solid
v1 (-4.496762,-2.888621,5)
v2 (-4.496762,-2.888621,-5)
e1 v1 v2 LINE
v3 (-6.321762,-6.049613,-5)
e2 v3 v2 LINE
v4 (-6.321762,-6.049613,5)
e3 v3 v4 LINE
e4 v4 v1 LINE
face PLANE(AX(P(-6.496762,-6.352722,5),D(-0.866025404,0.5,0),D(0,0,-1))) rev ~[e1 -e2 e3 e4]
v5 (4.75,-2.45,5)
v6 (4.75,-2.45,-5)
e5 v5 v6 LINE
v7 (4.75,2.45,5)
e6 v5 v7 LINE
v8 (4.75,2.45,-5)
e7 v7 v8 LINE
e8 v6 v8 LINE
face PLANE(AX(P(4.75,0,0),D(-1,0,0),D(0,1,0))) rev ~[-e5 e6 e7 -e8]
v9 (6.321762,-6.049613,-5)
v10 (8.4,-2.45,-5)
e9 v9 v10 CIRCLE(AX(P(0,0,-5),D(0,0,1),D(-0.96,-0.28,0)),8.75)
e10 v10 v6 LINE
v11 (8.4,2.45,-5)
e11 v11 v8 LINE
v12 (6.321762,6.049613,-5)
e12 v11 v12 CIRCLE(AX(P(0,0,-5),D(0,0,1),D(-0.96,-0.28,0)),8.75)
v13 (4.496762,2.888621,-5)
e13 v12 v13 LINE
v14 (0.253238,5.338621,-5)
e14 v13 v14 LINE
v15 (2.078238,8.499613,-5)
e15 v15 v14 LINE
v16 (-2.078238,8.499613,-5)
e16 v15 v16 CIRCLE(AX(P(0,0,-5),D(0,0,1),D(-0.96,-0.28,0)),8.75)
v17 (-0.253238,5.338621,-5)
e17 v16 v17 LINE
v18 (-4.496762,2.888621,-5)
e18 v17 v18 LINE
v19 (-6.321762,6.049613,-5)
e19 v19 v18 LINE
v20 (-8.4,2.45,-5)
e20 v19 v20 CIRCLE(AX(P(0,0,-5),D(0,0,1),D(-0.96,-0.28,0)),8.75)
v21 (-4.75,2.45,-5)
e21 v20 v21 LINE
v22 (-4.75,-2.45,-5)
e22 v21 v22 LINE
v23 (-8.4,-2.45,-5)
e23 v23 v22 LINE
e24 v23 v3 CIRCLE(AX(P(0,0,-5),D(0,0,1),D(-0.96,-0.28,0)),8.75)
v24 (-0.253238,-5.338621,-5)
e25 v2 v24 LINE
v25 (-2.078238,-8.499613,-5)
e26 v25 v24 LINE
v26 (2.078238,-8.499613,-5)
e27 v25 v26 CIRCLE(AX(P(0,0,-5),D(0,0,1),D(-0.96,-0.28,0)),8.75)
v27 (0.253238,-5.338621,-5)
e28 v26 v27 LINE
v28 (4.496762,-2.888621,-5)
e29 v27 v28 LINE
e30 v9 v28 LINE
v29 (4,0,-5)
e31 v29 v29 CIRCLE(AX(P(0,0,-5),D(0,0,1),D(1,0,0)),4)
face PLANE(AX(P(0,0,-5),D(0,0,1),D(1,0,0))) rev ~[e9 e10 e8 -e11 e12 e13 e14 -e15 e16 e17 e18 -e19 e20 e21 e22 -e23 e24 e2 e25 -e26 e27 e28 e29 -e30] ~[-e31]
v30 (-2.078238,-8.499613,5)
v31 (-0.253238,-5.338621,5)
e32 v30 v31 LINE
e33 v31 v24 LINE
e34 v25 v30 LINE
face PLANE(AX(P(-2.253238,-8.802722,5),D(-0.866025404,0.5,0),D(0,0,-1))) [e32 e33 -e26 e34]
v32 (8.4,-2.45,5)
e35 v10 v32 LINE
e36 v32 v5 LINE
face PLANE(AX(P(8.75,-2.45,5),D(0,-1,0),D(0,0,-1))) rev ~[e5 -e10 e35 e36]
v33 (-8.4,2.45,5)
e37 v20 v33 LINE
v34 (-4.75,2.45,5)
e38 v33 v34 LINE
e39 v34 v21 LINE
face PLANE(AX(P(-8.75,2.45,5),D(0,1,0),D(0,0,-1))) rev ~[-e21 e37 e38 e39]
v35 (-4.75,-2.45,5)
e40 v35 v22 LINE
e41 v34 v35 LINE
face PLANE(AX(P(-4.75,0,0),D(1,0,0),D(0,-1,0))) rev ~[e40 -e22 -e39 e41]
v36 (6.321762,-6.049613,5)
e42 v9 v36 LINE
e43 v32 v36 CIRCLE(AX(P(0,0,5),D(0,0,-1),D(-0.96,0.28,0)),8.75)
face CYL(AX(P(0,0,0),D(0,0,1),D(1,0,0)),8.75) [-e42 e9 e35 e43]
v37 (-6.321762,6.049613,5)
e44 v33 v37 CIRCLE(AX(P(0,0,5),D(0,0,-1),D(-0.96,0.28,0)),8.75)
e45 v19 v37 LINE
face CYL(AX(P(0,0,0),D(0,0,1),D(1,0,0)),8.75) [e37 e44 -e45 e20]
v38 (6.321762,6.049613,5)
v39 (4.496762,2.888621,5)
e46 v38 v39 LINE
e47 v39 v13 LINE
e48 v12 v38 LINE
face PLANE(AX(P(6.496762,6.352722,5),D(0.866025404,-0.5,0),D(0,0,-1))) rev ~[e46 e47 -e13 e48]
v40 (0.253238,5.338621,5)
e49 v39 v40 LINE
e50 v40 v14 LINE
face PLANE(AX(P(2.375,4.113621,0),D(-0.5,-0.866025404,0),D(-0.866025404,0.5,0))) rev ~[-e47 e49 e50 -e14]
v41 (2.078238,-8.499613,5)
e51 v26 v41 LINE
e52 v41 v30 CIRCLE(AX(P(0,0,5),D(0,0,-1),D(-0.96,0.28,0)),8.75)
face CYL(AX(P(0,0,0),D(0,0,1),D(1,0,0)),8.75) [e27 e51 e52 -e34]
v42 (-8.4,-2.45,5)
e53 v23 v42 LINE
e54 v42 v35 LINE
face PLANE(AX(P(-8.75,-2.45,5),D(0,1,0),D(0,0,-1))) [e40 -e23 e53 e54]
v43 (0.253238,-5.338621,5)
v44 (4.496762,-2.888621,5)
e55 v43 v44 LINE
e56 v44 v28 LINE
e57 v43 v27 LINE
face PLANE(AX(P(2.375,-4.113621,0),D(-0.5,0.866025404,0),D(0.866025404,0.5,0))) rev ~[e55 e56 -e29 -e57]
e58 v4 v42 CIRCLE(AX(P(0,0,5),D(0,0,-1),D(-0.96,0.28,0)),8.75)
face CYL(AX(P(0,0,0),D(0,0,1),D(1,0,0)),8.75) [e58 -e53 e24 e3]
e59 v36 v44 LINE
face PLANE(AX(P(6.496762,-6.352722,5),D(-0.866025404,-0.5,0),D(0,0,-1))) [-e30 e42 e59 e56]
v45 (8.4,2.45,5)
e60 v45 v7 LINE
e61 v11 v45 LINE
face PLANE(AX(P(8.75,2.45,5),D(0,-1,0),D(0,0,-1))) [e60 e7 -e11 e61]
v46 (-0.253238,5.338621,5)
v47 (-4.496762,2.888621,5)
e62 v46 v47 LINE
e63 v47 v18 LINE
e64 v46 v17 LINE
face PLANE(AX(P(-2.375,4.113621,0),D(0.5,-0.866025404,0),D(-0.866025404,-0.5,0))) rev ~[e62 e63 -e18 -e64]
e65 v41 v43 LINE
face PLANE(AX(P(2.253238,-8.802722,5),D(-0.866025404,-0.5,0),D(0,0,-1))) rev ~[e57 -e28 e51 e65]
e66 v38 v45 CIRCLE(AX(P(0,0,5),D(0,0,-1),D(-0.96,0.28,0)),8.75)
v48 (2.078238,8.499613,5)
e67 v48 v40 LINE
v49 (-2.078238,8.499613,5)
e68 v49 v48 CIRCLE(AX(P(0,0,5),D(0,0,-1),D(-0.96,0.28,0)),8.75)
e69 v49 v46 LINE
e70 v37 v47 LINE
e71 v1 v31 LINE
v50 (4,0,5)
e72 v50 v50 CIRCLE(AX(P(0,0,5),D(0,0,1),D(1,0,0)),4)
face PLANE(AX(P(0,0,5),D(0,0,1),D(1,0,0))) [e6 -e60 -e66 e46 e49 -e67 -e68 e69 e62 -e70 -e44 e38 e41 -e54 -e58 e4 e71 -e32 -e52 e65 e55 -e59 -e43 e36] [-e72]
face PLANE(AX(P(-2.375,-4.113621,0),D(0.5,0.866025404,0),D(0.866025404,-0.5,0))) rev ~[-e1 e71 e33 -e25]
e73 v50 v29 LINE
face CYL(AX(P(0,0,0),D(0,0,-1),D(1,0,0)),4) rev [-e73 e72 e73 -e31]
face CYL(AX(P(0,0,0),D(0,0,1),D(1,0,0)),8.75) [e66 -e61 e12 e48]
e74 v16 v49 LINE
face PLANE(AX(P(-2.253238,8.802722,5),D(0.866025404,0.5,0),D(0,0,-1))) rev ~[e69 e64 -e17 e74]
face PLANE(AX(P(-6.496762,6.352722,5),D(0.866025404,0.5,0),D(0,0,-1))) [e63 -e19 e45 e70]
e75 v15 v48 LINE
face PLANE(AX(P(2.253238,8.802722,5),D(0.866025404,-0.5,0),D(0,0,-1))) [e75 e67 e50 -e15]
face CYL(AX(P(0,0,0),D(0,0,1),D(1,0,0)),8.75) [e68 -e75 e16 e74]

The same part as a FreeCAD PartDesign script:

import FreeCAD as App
import Part
import Sketcher

V = App.Vector

doc = App.newDocument("Part")
body = doc.addObject("PartDesign::Body", "Body")

# Sketch on XY plane
sketch1 = body.newObject("Sketcher::SketchObject", "Sketch")
sketch1.AttachmentSupport = (doc.getObject("XY_Plane"), [""])
sketch1.MapMode = "FlatFace"
sketch1.addGeometry([
    Part.Circle(V(0, 0, 0), V(0, 0, 1), 8.8),
    Part.Circle(V(0, 0, 0), V(0, 0, 1), 4),
], False)
sketch1.addConstraint([
    Sketcher.Constraint("Coincident", 0, 3, -1, 1),
    Sketcher.Constraint("Coincident", 1, 3, -1, 1),
    Sketcher.Constraint("Diameter", 1, 8.0),
    Sketcher.Constraint("Diameter", 0, 17.5),
])
pad1 = body.newObject("PartDesign::Pad", "Pad")
pad1.Profile = sketch1
pad1.Length = 10
pad1.Midplane = True

# Sketch on YZ plane
sketch2 = body.newObject("Sketcher::SketchObject", "Sketch001")
sketch2.AttachmentSupport = (doc.getObject("YZ_Plane"), [""])
sketch2.MapMode = "FlatFace"
sketch2.AttachmentOffset = App.Placement(V(0, 0, -8.75), App.Rotation())
sketch2.addGeometry([
    Part.LineSegment(V(2.5, -5, 0), V(2.5, 5, 0)),
    Part.LineSegment(V(2.5, 5, 0), V(-2.5, 5, 0)),
    Part.LineSegment(V(-2.5, 5, 0), V(-2.5, -5, 0)),
    Part.LineSegment(V(-2.5, -5, 0), V(2.5, -5, 0)),
], False)
sketch2.addConstraint([
    Sketcher.Constraint("Coincident", 0, 2, 1, 1),
    Sketcher.Constraint("Coincident", 1, 2, 2, 1),
    Sketcher.Constraint("Coincident", 2, 2, 3, 1),
    Sketcher.Constraint("Coincident", 3, 2, 0, 1),
    Sketcher.Constraint("Vertical", 0),
    Sketcher.Constraint("Horizontal", 1),
    Sketcher.Constraint("Vertical", 2),
    Sketcher.Constraint("Horizontal", 3),
    Sketcher.Constraint("Symmetric", 0, 2, 2, 2, -1, 1),
    Sketcher.Constraint("DistanceY", 0, 1, 0, 2, 10.0),
    Sketcher.Constraint("DistanceX", 1, 2, 1, 1, 4.9),
])
pocket1 = body.newObject("PartDesign::Pocket", "Pocket")
pocket1.Profile = sketch2
pocket1.Length = 4
pocket1.Reversed = True
doc.recompute()

polarpattern = body.newObject("PartDesign::PolarPattern", "PolarPattern")
polarpattern.Originals = [pocket1]
polarpattern.Axis = (doc.getObject("Z_Axis"), [""])
polarpattern.Angle = 360
polarpattern.Occurrences = 6
body.Tip = polarpattern

doc.recompute()
